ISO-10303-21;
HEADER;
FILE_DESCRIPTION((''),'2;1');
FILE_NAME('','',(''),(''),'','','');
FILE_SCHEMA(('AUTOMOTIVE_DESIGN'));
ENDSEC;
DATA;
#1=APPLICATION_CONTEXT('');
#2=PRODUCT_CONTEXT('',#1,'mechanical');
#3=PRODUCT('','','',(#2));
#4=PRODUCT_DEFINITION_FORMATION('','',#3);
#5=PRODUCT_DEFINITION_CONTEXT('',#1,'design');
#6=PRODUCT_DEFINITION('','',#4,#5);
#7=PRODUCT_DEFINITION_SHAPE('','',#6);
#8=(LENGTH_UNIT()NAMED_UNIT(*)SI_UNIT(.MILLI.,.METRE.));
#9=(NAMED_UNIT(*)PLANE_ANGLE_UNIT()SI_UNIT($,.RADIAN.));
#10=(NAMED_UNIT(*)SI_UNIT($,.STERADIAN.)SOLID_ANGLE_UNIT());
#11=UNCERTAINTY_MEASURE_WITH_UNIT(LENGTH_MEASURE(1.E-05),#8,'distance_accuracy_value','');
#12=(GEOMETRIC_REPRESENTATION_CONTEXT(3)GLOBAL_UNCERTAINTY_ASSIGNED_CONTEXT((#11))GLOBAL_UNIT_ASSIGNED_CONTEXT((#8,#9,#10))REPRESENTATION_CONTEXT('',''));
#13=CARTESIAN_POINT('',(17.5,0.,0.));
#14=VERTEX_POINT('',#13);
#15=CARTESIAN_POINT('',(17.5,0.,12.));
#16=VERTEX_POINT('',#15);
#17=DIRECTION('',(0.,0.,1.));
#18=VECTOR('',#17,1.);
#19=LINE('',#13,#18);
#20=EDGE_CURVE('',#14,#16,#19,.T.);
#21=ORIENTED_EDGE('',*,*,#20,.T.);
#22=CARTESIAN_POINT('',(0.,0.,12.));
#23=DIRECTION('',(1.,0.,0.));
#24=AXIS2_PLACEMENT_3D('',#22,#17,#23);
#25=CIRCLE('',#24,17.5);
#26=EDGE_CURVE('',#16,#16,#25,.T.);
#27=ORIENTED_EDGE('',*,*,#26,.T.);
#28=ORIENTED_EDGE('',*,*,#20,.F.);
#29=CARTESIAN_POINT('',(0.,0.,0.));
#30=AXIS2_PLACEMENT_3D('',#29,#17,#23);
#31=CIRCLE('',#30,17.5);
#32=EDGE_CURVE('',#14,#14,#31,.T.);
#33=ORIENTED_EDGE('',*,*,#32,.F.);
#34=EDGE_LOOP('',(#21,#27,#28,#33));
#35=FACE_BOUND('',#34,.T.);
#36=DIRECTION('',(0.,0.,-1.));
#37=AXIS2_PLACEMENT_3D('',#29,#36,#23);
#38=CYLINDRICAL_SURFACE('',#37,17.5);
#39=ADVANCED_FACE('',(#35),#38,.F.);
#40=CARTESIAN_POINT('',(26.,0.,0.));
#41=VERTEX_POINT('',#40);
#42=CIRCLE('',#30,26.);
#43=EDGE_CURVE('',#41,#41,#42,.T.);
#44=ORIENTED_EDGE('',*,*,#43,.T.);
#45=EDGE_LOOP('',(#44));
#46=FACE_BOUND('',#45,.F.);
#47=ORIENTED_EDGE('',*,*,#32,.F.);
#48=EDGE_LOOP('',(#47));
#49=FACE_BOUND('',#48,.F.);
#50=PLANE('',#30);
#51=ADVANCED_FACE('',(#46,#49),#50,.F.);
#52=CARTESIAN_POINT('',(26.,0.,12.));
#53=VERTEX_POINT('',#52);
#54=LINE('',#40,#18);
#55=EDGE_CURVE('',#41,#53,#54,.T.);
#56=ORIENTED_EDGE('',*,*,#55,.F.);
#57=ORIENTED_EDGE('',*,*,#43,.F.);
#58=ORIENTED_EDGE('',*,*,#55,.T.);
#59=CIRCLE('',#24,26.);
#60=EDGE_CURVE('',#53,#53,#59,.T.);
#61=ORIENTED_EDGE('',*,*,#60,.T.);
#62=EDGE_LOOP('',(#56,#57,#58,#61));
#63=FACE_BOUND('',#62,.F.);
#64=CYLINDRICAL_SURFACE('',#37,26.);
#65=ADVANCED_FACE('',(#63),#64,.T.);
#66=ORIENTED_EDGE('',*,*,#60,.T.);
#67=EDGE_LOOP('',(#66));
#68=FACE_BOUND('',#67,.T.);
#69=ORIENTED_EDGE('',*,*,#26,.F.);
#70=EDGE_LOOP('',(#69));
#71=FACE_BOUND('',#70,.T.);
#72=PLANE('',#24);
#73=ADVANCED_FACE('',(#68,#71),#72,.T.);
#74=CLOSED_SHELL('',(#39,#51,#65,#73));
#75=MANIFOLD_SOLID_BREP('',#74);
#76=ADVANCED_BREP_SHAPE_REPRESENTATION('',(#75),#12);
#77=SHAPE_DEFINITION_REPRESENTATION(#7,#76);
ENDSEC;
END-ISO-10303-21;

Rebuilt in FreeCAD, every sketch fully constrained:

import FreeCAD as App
import Part
import Sketcher

doc = App.newDocument("Part")
params = doc.addObject("Spreadsheet::Sheet", "Params")
for row, (alias, value) in enumerate([
    ("sketch1_diameter", "52 mm"),
    ("sketch1_diameter2", "35 mm"),
    ("pad1_length", "12 mm"),
], start=1):
    params.set(f"A{row}", alias)
    params.set(f"B{row}", "=" + value)
    params.setAlias(f"B{row}", alias)

body = doc.addObject("PartDesign::Body", "Body")

sketch1 = doc.addObject("Sketcher::SketchObject", "Sketch")
body.addObject(sketch1)
sketch1.AttachmentSupport = (doc.XY_Plane, [""])
sketch1.MapMode = "FlatFace"
sketch1.addGeometry([
    Part.Circle(App.Vector(0, 0, 0), App.Vector(0, 0, 1), 26),
    Part.Circle(App.Vector(0, 0, 0), App.Vector(0, 0, 1), 18),
], False)
sketch1.addConstraint([
    Sketcher.Constraint("Coincident", 0, 3, -1, 1),
    Sketcher.Constraint("Coincident", 1, 3, -1, 1),
    Sketcher.Constraint("Diameter", 0, 52.0),
    Sketcher.Constraint("Diameter", 1, 35.0),
])
sketch1.setExpression("Constraints[2]", "Params.sketch1_diameter")
sketch1.setExpression("Constraints[3]", "Params.sketch1_diameter2")
pad1 = doc.addObject("PartDesign::Pad", "Pad")
body.addObject(pad1)
pad1.Profile = sketch1
pad1.setExpression("Length", "Params.pad1_length")

doc.recompute()
